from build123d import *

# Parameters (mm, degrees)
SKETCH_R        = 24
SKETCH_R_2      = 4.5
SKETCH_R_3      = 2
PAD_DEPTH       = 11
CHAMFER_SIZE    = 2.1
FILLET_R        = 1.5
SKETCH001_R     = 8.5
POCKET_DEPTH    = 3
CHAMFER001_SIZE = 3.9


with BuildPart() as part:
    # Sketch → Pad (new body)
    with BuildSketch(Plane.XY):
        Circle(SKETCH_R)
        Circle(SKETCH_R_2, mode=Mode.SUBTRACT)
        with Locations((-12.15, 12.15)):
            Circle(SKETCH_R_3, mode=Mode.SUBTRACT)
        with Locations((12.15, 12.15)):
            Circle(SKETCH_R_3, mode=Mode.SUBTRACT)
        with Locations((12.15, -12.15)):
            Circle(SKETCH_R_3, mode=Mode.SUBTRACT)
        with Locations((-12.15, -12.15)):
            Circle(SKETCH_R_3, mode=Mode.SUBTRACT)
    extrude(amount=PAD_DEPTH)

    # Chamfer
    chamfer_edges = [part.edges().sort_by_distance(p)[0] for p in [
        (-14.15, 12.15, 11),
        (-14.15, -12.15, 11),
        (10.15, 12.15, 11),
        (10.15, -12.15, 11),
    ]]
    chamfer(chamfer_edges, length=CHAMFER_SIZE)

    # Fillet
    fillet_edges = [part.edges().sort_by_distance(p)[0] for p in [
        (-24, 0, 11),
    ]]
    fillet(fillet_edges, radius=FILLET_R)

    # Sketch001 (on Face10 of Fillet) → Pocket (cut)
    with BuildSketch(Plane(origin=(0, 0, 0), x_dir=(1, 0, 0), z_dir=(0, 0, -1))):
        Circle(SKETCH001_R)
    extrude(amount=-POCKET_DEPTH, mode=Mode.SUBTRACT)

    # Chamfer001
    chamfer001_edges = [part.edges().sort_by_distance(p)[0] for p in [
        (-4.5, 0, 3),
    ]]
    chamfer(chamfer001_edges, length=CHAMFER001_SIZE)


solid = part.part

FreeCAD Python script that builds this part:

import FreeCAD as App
import Part
import Sketcher
Q = App.Units.Quantity


def edges_at(feature, points):
    """Names of the edges that pass closest to the given points."""
    edges = feature.Shape.Edges
    near = lambda p: min(range(len(edges)), key=lambda i: edges[i].distToShape(Part.Vertex(*p))[0])
    return sorted({f"Edge{near(p) + 1}" for p in points})

doc = App.newDocument("Part")
params = doc.addObject("Spreadsheet::Sheet", "Params")
for row, (alias, value) in enumerate([
    ("sketch1_diameter", "48 mm"),
    ("sketch1_diameter2", "4 mm"),
    ("sketch1_diameter3", "9 mm"),
    ("pad1_length", "11 mm"),
    ("chamfer_size", "2.1 mm"),
    ("fillet_radius", "1.5 mm"),
    ("sketch2_diameter", "17 mm"),
    ("pocket1_length", "3 mm"),
    ("chamfer2_size", "3.9 mm"),
], start=1):
    params.set(f"A{row}", alias)
    params.set(f"B{row}", "=" + value)
    params.setAlias(f"B{row}", alias)

body = doc.addObject("PartDesign::Body", "Body")

sketch1 = doc.addObject("Sketcher::SketchObject", "Sketch")
body.addObject(sketch1)
sketch1.AttachmentSupport = (doc.XY_Plane, [""])
sketch1.MapMode = "FlatFace"
sketch1.addGeometry(Part.Circle(App.Vector(0, 0, 0), App.Vector(0, 0, 1), 24), False)
sketch1.addGeometry(Part.Circle(App.Vector(-12.2, -12.2, 0), App.Vector(0, 0, 1), 2), False)
sketch1.addGeometry(Part.Circle(App.Vector(12.2, -12.2, 0), App.Vector(0, 0, 1), 2), False)
sketch1.addGeometry(Part.Circle(App.Vector(-12.2, 12.2, 0), App.Vector(0, 0, 1), 2), False)
sketch1.addGeometry(Part.Circle(App.Vector(0, 0, 0), App.Vector(0, 0, 1), 4.5), False)
sketch1.addGeometry(Part.Circle(App.Vector(12.2, 12.2, 0), App.Vector(0, 0, 1), 2), False)
sketch1.addConstraint(Sketcher.Constraint("Coincident", 0, 3, -1, 1))
sketch1.addConstraint(Sketcher.Constraint("Coincident", 4, 3, -1, 1))
sketch1.addConstraint(Sketcher.Constraint("Equal", 1, 2))
sketch1.addConstraint(Sketcher.Constraint("Equal", 2, 3))
sketch1.addConstraint(Sketcher.Constraint("Equal", 3, 5))
sketch1.addConstraint(Sketcher.Constraint("Symmetric", 2, 3, 3, 3, -1, 1))
sketch1.addConstraint(Sketcher.Constraint("Symmetric", 1, 3, 5, 3, -1, 1))
sketch1.addConstraint(Sketcher.Constraint("Symmetric", 1, 3, 2, 3, -2))
sketch1.addConstraint(Sketcher.Constraint("Diameter", 0, Q("48 mm")))
sketch1.addConstraint(Sketcher.Constraint("Diameter", 1, Q("4 mm")))
sketch1.addConstraint(Sketcher.Constraint("Diameter", 4, Q("9 mm")))
sketch1.addConstraint(Sketcher.Constraint("DistanceX", 1, 3, 2, 3, Q("24.3 mm")))
sketch1.addConstraint(Sketcher.Constraint("DistanceY", 1, 3, 3, 3, Q("24.3 mm")))
sketch1.setExpression("Constraints[8]", "Params.sketch1_diameter")
sketch1.setExpression("Constraints[9]", "Params.sketch1_diameter2")
sketch1.setExpression("Constraints[10]", "Params.sketch1_diameter3")
pad1 = doc.addObject("PartDesign::Pad", "Pad")
body.addObject(pad1)
pad1.Profile = sketch1
pad1.setExpression("Length", "Params.pad1_length")
doc.recompute()

chamfer = doc.addObject("PartDesign::Chamfer", "Chamfer")
body.addObject(chamfer)
chamfer.Base = (pad1, edges_at(pad1, [
    (-14.15, 12.15, 11),
    (-14.15, -12.15, 11),
    (10.15, 12.15, 11),
    (10.15, -12.15, 11),
]))
chamfer.setExpression("Size", "Params.chamfer_size")
doc.recompute()

fillet = doc.addObject("PartDesign::Fillet", "Fillet")
body.addObject(fillet)
fillet.Base = (chamfer, edges_at(chamfer, [(-24, 0, 11)]))
fillet.setExpression("Radius", "Params.fillet_radius")

sketch2 = doc.addObject("Sketcher::SketchObject", "Sketch001")
body.addObject(sketch2)
sketch2.AttachmentSupport = (doc.XY_Plane, [""])
sketch2.MapMode = "FlatFace"
sketch2.addGeometry(Part.Circle(App.Vector(0, 0, 0), App.Vector(0, 0, 1), 8), False)
sketch2.addConstraint(Sketcher.Constraint("Coincident", 0, 3, -1, 1))
sketch2.addConstraint(Sketcher.Constraint("Diameter", 0, Q("17 mm")))
sketch2.setExpression("Constraints[1]", "Params.sketch2_diameter")
pocket1 = doc.addObject("PartDesign::Pocket", "Pocket")
body.addObject(pocket1)
pocket1.Profile = sketch2
pocket1.setExpression("Length", "Params.pocket1_length")
pocket1.Reversed = True
doc.recompute()

chamfer2 = doc.addObject("PartDesign::Chamfer", "Chamfer001")
body.addObject(chamfer2)
chamfer2.Base = (pocket1, edges_at(pocket1, [(-4.5, 0, 3)]))
chamfer2.setExpression("Size", "Params.chamfer2_size")

doc.recompute()
